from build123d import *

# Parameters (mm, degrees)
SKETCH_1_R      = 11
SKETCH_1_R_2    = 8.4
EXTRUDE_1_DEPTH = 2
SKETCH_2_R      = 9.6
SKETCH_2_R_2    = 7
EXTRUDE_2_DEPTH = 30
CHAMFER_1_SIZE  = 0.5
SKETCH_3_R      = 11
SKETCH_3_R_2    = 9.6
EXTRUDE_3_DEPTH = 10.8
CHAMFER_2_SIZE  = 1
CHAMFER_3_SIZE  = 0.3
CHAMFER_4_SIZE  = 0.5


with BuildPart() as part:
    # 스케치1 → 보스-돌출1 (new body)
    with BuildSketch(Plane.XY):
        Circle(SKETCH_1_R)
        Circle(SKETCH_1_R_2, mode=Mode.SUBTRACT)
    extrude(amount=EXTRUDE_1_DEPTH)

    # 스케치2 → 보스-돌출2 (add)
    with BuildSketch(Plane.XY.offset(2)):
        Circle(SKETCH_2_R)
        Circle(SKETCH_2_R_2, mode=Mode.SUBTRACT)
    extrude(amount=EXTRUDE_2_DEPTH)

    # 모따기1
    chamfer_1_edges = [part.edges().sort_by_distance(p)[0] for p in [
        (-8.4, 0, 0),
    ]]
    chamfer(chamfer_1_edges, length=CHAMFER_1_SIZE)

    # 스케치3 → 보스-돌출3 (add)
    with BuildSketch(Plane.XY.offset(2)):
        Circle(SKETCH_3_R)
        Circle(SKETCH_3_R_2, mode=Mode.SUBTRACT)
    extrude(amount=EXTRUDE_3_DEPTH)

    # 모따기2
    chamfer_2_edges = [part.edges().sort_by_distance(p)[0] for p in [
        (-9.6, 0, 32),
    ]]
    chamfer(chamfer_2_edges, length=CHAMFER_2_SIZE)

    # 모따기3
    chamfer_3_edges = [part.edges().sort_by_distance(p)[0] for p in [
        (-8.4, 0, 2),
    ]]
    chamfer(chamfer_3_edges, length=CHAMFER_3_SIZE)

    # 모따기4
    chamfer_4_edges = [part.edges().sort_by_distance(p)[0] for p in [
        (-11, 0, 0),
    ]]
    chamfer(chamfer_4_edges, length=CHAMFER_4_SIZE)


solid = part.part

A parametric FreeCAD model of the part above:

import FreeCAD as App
import Part
import Sketcher

V = App.Vector


def edges_at(feature, points):
    """Names of the edges that pass closest to the given points."""
    edges = feature.Shape.Edges
    near = lambda p: min(range(len(edges)), key=lambda i: edges[i].distToShape(Part.Vertex(*p))[0])
    return sorted({f"Edge{near(p) + 1}" for p in points})

doc = App.newDocument("Part")
params = doc.addObject("Spreadsheet::Sheet", "Params")
for row, (alias, value) in enumerate([
    ("sketch1_diameter", "22 mm"),
    ("sketch1_diameter2", "16.8 mm"),
    ("pad1_length", "2 mm"),
    ("sketch2_diameter", "14 mm"),
    ("sketch2_diameter2", "19.2 mm"),
    ("pad2_length", "30 mm"),
    ("chamfer_size", "0.5 mm"),
    ("sketch3_diameter", "22 mm"),
    ("sketch3_diameter2", "19.2 mm"),
    ("pad3_length", "10.8 mm"),
    ("chamfer2_size", "1 mm"),
    ("chamfer3_size", "0.3 mm"),
    ("chamfer4_size", "0.5 mm"),
], start=1):
    params.set(f"A{row}", alias)
    params.set(f"B{row}", "=" + value)
    params.setAlias(f"B{row}", alias)

body = doc.addObject("PartDesign::Body", "Body")

# Sketch on XY plane
sketch1 = body.newObject("Sketcher::SketchObject", "Sketch")
sketch1.AttachmentSupport = (doc.getObject("XY_Plane"), [""])
sketch1.MapMode = "FlatFace"
sketch1.addGeometry(Part.Circle(V(0, 0, 0), V(0, 0, 1), 11), False)
sketch1.addGeometry(Part.Circle(V(0, 0, 0), V(0, 0, 1), 8), False)
sketch1.addConstraint(Sketcher.Constraint("Coincident", 0, 3, -1, 1))
sketch1.addConstraint(Sketcher.Constraint("Coincident", 1, 3, -1, 1))
sketch1.addConstraint(Sketcher.Constraint("Diameter", 0, 22.0))
sketch1.addConstraint(Sketcher.Constraint("Diameter", 1, 16.8))
sketch1.setExpression("Constraints[2]", "Params.sketch1_diameter")
sketch1.setExpression("Constraints[3]", "Params.sketch1_diameter2")
pad1 = body.newObject("PartDesign::Pad", "Pad")
pad1.Profile = sketch1
pad1.setExpression("Length", "Params.pad1_length")

# Sketch on XY plane
sketch2 = body.newObject("Sketcher::SketchObject", "Sketch001")
sketch2.AttachmentSupport = (doc.getObject("XY_Plane"), [""])
sketch2.MapMode = "FlatFace"
sketch2.AttachmentOffset = App.Placement(V(0, 0, 2), App.Rotation())
sketch2.addGeometry(Part.Circle(V(0, 0, 0), V(0, 0, 1), 10), False)
sketch2.addGeometry(Part.Circle(V(0, 0, 0), V(0, 0, 1), 7), False)
sketch2.addConstraint(Sketcher.Constraint("Coincident", 0, 3, -1, 1))
sketch2.addConstraint(Sketcher.Constraint("Coincident", 1, 3, -1, 1))
sketch2.addConstraint(Sketcher.Constraint("Diameter", 1, 14.0))
sketch2.addConstraint(Sketcher.Constraint("Diameter", 0, 19.2))
sketch2.setExpression("Constraints[2]", "Params.sketch2_diameter")
sketch2.setExpression("Constraints[3]", "Params.sketch2_diameter2")
pad2 = body.newObject("PartDesign::Pad", "Pad001")
pad2.Profile = sketch2
pad2.setExpression("Length", "Params.pad2_length")
doc.recompute()

chamfer = body.newObject("PartDesign::Chamfer", "Chamfer")
chamfer.Base = (pad2, edges_at(pad2, [(-8.4, 0, 0)]))
chamfer.setExpression("Size", "Params.chamfer_size")

# Sketch on XY plane
sketch3 = body.newObject("Sketcher::SketchObject", "Sketch002")
sketch3.AttachmentSupport = (doc.getObject("XY_Plane"), [""])
sketch3.MapMode = "FlatFace"
sketch3.AttachmentOffset = App.Placement(V(0, 0, 2), App.Rotation())
sketch3.addGeometry(Part.Circle(V(0, 0, 0), V(0, 0, 1), 11), False)
sketch3.addGeometry(Part.Circle(V(0, 0, 0), V(0, 0, 1), 10), False)
sketch3.addConstraint(Sketcher.Constraint("Coincident", 0, 3, -1, 1))
sketch3.addConstraint(Sketcher.Constraint("Coincident", 1, 3, -1, 1))
sketch3.addConstraint(Sketcher.Constraint("Diameter", 0, 22.0))
sketch3.addConstraint(Sketcher.Constraint("Diameter", 1, 19.2))
sketch3.setExpression("Constraints[2]", "Params.sketch3_diameter")
sketch3.setExpression("Constraints[3]", "Params.sketch3_diameter2")
pad3 = body.newObject("PartDesign::Pad", "Pad002")
pad3.Profile = sketch3
pad3.setExpression("Length", "Params.pad3_length")
doc.recompute()

chamfer2 = body.newObject("PartDesign::Chamfer", "Chamfer001")
chamfer2.Base = (pad3, edges_at(pad3, [(-9.6, 0, 32)]))
chamfer2.setExpression("Size", "Params.chamfer2_size")
doc.recompute()

chamfer3 = body.newObject("PartDesign::Chamfer", "Chamfer002")
chamfer3.Base = (chamfer2, edges_at(chamfer2, [(-8.4, 0, 2)]))
chamfer3.setExpression("Size", "Params.chamfer3_size")
doc.recompute()

chamfer4 = body.newObject("PartDesign::Chamfer", "Chamfer003")
chamfer4.Base = (chamfer3, edges_at(chamfer3, [(-11, 0, 0)]))
chamfer4.setExpression("Size", "Params.chamfer4_size")

doc.recompute()
